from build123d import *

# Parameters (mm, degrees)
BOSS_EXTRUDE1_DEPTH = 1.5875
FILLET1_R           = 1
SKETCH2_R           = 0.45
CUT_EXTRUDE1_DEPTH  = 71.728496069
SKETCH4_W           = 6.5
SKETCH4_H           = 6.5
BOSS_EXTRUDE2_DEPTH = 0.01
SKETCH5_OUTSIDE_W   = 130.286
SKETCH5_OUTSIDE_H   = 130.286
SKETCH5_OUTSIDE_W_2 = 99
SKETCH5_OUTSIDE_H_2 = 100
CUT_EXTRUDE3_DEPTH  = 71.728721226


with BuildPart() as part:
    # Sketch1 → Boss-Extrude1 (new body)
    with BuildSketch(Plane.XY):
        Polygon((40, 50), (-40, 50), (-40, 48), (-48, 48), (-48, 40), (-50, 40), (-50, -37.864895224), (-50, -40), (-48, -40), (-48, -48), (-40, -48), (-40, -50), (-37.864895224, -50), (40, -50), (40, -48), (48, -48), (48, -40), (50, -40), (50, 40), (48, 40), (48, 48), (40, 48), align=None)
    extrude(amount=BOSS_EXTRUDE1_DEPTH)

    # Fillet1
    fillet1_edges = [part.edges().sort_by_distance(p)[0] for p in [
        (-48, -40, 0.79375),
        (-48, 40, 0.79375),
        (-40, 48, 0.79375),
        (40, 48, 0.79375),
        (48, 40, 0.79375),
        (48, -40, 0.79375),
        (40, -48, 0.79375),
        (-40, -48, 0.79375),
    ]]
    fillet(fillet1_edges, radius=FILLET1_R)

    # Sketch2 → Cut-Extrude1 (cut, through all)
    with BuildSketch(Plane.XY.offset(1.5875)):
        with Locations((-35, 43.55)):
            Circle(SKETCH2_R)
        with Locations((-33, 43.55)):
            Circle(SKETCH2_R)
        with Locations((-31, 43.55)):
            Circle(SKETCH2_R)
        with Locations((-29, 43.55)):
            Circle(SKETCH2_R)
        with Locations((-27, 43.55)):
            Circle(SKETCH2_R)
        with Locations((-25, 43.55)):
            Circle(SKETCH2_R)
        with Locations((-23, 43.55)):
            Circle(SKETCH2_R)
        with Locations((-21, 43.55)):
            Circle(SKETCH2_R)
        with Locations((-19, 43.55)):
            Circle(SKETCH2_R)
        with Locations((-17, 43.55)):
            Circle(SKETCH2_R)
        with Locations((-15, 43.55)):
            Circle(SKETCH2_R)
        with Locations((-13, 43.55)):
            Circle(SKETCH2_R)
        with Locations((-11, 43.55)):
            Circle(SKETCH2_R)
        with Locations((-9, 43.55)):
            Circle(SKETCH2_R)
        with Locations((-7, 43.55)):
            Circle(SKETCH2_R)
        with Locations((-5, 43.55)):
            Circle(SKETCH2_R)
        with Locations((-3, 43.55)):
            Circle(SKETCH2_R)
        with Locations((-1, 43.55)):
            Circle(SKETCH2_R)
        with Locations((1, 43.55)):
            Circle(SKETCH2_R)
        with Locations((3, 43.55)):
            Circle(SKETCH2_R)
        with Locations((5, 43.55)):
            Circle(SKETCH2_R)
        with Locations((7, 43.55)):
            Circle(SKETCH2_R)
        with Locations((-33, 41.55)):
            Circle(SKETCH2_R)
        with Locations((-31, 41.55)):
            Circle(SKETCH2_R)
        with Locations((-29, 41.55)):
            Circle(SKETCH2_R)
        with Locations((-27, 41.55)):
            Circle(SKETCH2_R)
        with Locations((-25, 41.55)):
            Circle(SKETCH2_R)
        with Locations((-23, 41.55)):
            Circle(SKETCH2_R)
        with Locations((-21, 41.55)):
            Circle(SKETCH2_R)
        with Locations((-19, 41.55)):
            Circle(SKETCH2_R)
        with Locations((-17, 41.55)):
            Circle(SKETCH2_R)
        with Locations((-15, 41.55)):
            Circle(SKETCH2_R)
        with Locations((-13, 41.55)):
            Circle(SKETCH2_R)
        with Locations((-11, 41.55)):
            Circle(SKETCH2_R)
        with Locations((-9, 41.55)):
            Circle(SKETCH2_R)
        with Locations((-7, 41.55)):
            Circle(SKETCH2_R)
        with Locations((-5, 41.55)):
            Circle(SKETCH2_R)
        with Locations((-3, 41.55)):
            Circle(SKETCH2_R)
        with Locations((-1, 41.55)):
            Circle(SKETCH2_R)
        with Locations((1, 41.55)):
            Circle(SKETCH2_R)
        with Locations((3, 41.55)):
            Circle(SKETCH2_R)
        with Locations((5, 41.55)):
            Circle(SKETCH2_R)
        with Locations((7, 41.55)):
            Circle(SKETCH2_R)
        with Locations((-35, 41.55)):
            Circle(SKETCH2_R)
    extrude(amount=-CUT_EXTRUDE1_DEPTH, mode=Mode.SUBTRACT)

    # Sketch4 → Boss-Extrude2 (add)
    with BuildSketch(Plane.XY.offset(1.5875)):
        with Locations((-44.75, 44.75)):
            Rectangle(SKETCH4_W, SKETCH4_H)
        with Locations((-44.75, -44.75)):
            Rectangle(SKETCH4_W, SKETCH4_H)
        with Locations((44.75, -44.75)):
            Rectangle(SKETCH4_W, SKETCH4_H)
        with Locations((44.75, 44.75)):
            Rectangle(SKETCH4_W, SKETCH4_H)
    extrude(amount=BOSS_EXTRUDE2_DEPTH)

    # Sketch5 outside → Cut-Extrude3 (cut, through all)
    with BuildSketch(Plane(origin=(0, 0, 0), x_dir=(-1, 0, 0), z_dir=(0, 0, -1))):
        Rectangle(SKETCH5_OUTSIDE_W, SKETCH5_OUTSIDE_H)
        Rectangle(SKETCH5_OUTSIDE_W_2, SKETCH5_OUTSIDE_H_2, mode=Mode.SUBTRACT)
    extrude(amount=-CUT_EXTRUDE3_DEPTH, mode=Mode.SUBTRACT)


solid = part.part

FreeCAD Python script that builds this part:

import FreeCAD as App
import Part
import Sketcher
from FreeCAD import Vector
Q = App.Units.Quantity


def edges_at(feature, points):
    """Names of the edges that pass closest to the given points."""
    edges = feature.Shape.Edges
    near = lambda p: min(range(len(edges)), key=lambda i: edges[i].distToShape(Part.Vertex(*p))[0])
    return sorted({f"Edge{near(p) + 1}" for p in points})


def add_polygon(sketch, points):
    """Adds a closed chain of lines whose ends are joined by coincident constraints."""
    first, n = sketch.GeometryCount, len(points)
    for a, b in zip(points, points[1:] + points[:1]):
        sketch.addGeometry(Part.LineSegment(App.Vector(*a, 0), App.Vector(*b, 0)), False)
    for i in range(n):
        sketch.addConstraint(Sketcher.Constraint("Coincident", first + i, 2, first + (i + 1) % n, 1))

doc = App.newDocument("Part")
params = doc.addObject("Spreadsheet::Sheet", "Params")
for row, (alias, value) in enumerate([
    ("sketch1_width", "80 mm"),
    ("sketch1_width2", "8 mm"),
    ("sketch1_width3", "2 mm"),
    ("pad1_length", "1.5875 mm"),
    ("fillet_radius", "1 mm"),
    ("sketch2_diameter", "0.9 mm"),
    ("sketch3_width", "6.5 mm"),
    ("pad2_length", "0.01 mm"),
    ("sketch4_width", "99 mm"),
    ("sketch4_height", "100 mm"),
], start=1):
    params.set(f"A{row}", alias)
    params.set(f"B{row}", "=" + value)
    params.setAlias(f"B{row}", alias)

body = doc.addObject("PartDesign::Body", "Body")

sketch1 = body.newObject("Sketcher::SketchObject", "Sketch")
sketch1.AttachmentSupport = (doc.getObject("XY_Plane"), [""])
sketch1.MapMode = "FlatFace"
add_polygon(sketch1, [(40, 50), (-40, 50), (-40, 48), (-48, 48), (-48, 40), (-50, 40), (-50, -40), (-48, -40), (-48, -48), (-40, -48), (-40, -50), (40, -50), (40, -48), (48, -48), (48, -40), (50, -40), (50, 40), (48, 40), (48, 48), (40, 48)])
sketch1.addConstraint(Sketcher.Constraint("Horizontal", 0))
sketch1.addConstraint(Sketcher.Constraint("Vertical", 1))
sketch1.addConstraint(Sketcher.Constraint("Horizontal", 2))
sketch1.addConstraint(Sketcher.Constraint("Vertical", 3))
sketch1.addConstraint(Sketcher.Constraint("Horizontal", 4))
sketch1.addConstraint(Sketcher.Constraint("Vertical", 5))
sketch1.addConstraint(Sketcher.Constraint("Horizontal", 6))
sketch1.addConstraint(Sketcher.Constraint("Vertical", 7))
sketch1.addConstraint(Sketcher.Constraint("Horizontal", 8))
sketch1.addConstraint(Sketcher.Constraint("Vertical", 9))
sketch1.addConstraint(Sketcher.Constraint("Horizontal", 10))
sketch1.addConstraint(Sketcher.Constraint("Vertical", 11))
sketch1.addConstraint(Sketcher.Constraint("Horizontal", 12))
sketch1.addConstraint(Sketcher.Constraint("Vertical", 13))
sketch1.addConstraint(Sketcher.Constraint("Horizontal", 14))
sketch1.addConstraint(Sketcher.Constraint("Vertical", 15))
sketch1.addConstraint(Sketcher.Constraint("Horizontal", 16))
sketch1.addConstraint(Sketcher.Constraint("Vertical", 17))
sketch1.addConstraint(Sketcher.Constraint("Horizontal", 18))
sketch1.addConstraint(Sketcher.Constraint("Vertical", 19))
sketch1.addConstraint(Sketcher.Constraint("Symmetric", 0, 2, 10, 2, -1, 1))
sketch1.addConstraint(Sketcher.Constraint("Symmetric", 2, 2, 12, 2, -1, 1))
sketch1.addConstraint(Sketcher.Constraint("Symmetric", 4, 2, 14, 2, -1, 1))
sketch1.addConstraint(Sketcher.Constraint("Symmetric", 6, 2, 16, 2, -1, 1))
sketch1.addConstraint(Sketcher.Constraint("Symmetric", 8, 2, 18, 2, -1, 1))
sketch1.addConstraint(Sketcher.Constraint("Symmetric", 8, 2, 11, 2, -2))
sketch1.addConstraint(Sketcher.Constraint("Symmetric", 6, 2, 13, 2, -2))
sketch1.addConstraint(Sketcher.Constraint("Equal", 16, 1))
sketch1.addConstraint(Sketcher.Constraint("Equal", 18, 3))
sketch1.addConstraint(Sketcher.Constraint("Equal", 10, 5))
sketch1.addConstraint(Sketcher.Constraint("DistanceX", 0, 2, 0, 1, Q("80 mm")))
sketch1.addConstraint(Sketcher.Constraint("DistanceX", 2, 2, 2, 1, Q("8 mm")))
sketch1.addConstraint(Sketcher.Constraint("DistanceX", 4, 2, 4, 1, Q("2 mm")))
sketch1.setExpression("Constraints[50]", "Params.sketch1_width")
sketch1.setExpression("Constraints[51]", "Params.sketch1_width2")
sketch1.setExpression("Constraints[52]", "Params.sketch1_width3")
pad1 = body.newObject("PartDesign::Pad", "Pad")
pad1.Profile = sketch1
pad1.setExpression("Length", "Params.pad1_length")
doc.recompute()

fillet = body.newObject("PartDesign::Fillet", "Fillet")
fillet.Base = (pad1, edges_at(pad1, [
    (-48, -40, 0.794),
    (-48, 40, 0.794),
    (-40, 48, 0.794),
    (40, 48, 0.794),
    (48, 40, 0.794),
    (48, -40, 0.794),
    (40, -48, 0.794),
    (-40, -48, 0.794),
]))
fillet.setExpression("Radius", "Params.fillet_radius")

sketch2 = body.newObject("Sketcher::SketchObject", "Sketch001")
sketch2.AttachmentSupport = (doc.getObject("XY_Plane"), [""])
sketch2.MapMode = "FlatFace"
sketch2.AttachmentOffset = App.Placement(Vector(0, 0, 1.5875), App.Rotation())
sketch2.addGeometry(Part.Circle(Vector(-35, 43.55, 0), Vector(0, 0, 1), 0.45), False)
sketch2.addGeometry(Part.Circle(Vector(-33, 43.55, 0), Vector(0, 0, 1), 0.45), False)
sketch2.addGeometry(Part.Circle(Vector(-31, 43.55, 0), Vector(0, 0, 1), 0.45), False)
sketch2.addGeometry(Part.Circle(Vector(-29, 43.55, 0), Vector(0, 0, 1), 0.45), False)
sketch2.addGeometry(Part.Circle(Vector(-27, 43.55, 0), Vector(0, 0, 1), 0.45), False)
sketch2.addGeometry(Part.Circle(Vector(-25, 43.55, 0), Vector(0, 0, 1), 0.45), False)
sketch2.addGeometry(Part.Circle(Vector(-23, 43.55, 0), Vector(0, 0, 1), 0.45), False)
sketch2.addGeometry(Part.Circle(Vector(-21, 43.55, 0), Vector(0, 0, 1), 0.45), False)
sketch2.addGeometry(Part.Circle(Vector(-19, 43.55, 0), Vector(0, 0, 1), 0.45), False)
sketch2.addGeometry(Part.Circle(Vector(-17, 43.55, 0), Vector(0, 0, 1), 0.45), False)
sketch2.addGeometry(Part.Circle(Vector(-15, 43.55, 0), Vector(0, 0, 1), 0.45), False)
sketch2.addGeometry(Part.Circle(Vector(-13, 43.55, 0), Vector(0, 0, 1), 0.45), False)
sketch2.addGeometry(Part.Circle(Vector(-11, 43.55, 0), Vector(0, 0, 1), 0.45), False)
sketch2.addGeometry(Part.Circle(Vector(-9, 43.55, 0), Vector(0, 0, 1), 0.45), False)
sketch2.addGeometry(Part.Circle(Vector(-7, 43.55, 0), Vector(0, 0, 1), 0.45), False)
sketch2.addGeometry(Part.Circle(Vector(-5, 43.55, 0), Vector(0, 0, 1), 0.45), False)
sketch2.addGeometry(Part.Circle(Vector(-3, 43.55, 0), Vector(0, 0, 1), 0.45), False)
sketch2.addGeometry(Part.Circle(Vector(-1, 43.55, 0), Vector(0, 0, 1), 0.45), False)
sketch2.addGeometry(Part.Circle(Vector(1, 43.55, 0), Vector(0, 0, 1), 0.45), False)
sketch2.addGeometry(Part.Circle(Vector(3, 43.55, 0), Vector(0, 0, 1), 0.45), False)
sketch2.addGeometry(Part.Circle(Vector(5, 43.55, 0), Vector(0, 0, 1), 0.45), False)
sketch2.addGeometry(Part.Circle(Vector(7, 43.55, 0), Vector(0, 0, 1), 0.45), False)
sketch2.addGeometry(Part.Circle(Vector(-33, 41.55, 0), Vector(0, 0, 1), 0.45), False)
sketch2.addGeometry(Part.Circle(Vector(-31, 41.55, 0), Vector(0, 0, 1), 0.45), False)
sketch2.addGeometry(Part.Circle(Vector(-29, 41.55, 0), Vector(0, 0, 1), 0.45), False)
sketch2.addGeometry(Part.Circle(Vector(-27, 41.55, 0), Vector(0, 0, 1), 0.45), False)
sketch2.addGeometry(Part.Circle(Vector(-25, 41.55, 0), Vector(0, 0, 1), 0.45), False)
sketch2.addGeometry(Part.Circle(Vector(-23, 41.55, 0), Vector(0, 0, 1), 0.45), False)
sketch2.addGeometry(Part.Circle(Vector(-21, 41.55, 0), Vector(0, 0, 1), 0.45), False)
sketch2.addGeometry(Part.Circle(Vector(-19, 41.55, 0), Vector(0, 0, 1), 0.45), False)
sketch2.addGeometry(Part.Circle(Vector(-17, 41.55, 0), Vector(0, 0, 1), 0.45), False)
sketch2.addGeometry(Part.Circle(Vector(-15, 41.55, 0), Vector(0, 0, 1), 0.45), False)
sketch2.addGeometry(Part.Circle(Vector(-13, 41.55, 0), Vector(0, 0, 1), 0.45), False)
sketch2.addGeometry(Part.Circle(Vector(-11, 41.55, 0), Vector(0, 0, 1), 0.45), False)
sketch2.addGeometry(Part.Circle(Vector(-9, 41.55, 0), Vector(0, 0, 1), 0.45), False)
sketch2.addGeometry(Part.Circle(Vector(-7, 41.55, 0), Vector(0, 0, 1), 0.45), False)
sketch2.addGeometry(Part.Circle(Vector(-5, 41.55, 0), Vector(0, 0, 1), 0.45), False)
sketch2.addGeometry(Part.Circle(Vector(-3, 41.55, 0), Vector(0, 0, 1), 0.45), False)
sketch2.addGeometry(Part.Circle(Vector(-1, 41.55, 0), Vector(0, 0, 1), 0.45), False)
sketch2.addGeometry(Part.Circle(Vector(1, 41.55, 0), Vector(0, 0, 1), 0.45), False)
sketch2.addGeometry(Part.Circle(Vector(3, 41.55, 0), Vector(0, 0, 1), 0.45), False)
sketch2.addGeometry(Part.Circle(Vector(5, 41.55, 0), Vector(0, 0, 1), 0.45), False)
sketch2.addGeometry(Part.Circle(Vector(7, 41.55, 0), Vector(0, 0, 1), 0.45), False)
sketch2.addGeometry(Part.Circle(Vector(-35, 41.55, 0), Vector(0, 0, 1), 0.45), False)
sketch2.addConstraint(Sketcher.Constraint("Equal", 0, 1))
sketch2.addConstraint(Sketcher.Constraint("Equal", 1, 2))
sketch2.addConstraint(Sketcher.Constraint("Equal", 2, 3))
sketch2.addConstraint(Sketcher.Constraint("Equal", 3, 4))
sketch2.addConstraint(Sketcher.Constraint("Equal", 4, 5))
sketch2.addConstraint(Sketcher.Constraint("Equal", 5, 6))
sketch2.addConstraint(Sketcher.Constraint("Equal", 6, 7))
sketch2.addConstraint(Sketcher.Constraint("Equal", 7, 8))
sketch2.addConstraint(Sketcher.Constraint("Equal", 8, 9))
sketch2.addConstraint(Sketcher.Constraint("Equal", 9, 10))
sketch2.addConstraint(Sketcher.Constraint("Equal", 10, 11))
sketch2.addConstraint(Sketcher.Constraint("Equal", 11, 12))
sketch2.addConstraint(Sketcher.Constraint("Equal", 12, 13))
sketch2.addConstraint(Sketcher.Constraint("Equal", 13, 14))
sketch2.addConstraint(Sketcher.Constraint("Equal", 14, 15))
sketch2.addConstraint(Sketcher.Constraint("Equal", 15, 16))
sketch2.addConstraint(Sketcher.Constraint("Equal", 16, 17))
sketch2.addConstraint(Sketcher.Constraint("Equal", 17, 18))
sketch2.addConstraint(Sketcher.Constraint("Equal", 18, 19))
sketch2.addConstraint(Sketcher.Constraint("Equal", 19, 20))
sketch2.addConstraint(Sketcher.Constraint("Equal", 20, 21))
sketch2.addConstraint(Sketcher.Constraint("Equal", 21, 22))
sketch2.addConstraint(Sketcher.Constraint("Equal", 22, 23))
sketch2.addConstraint(Sketcher.Constraint("Equal", 23, 24))
sketch2.addConstraint(Sketcher.Constraint("Equal", 24, 25))
sketch2.addConstraint(Sketcher.Constraint("Equal", 25, 26))
sketch2.addConstraint(Sketcher.Constraint("Equal", 26, 27))
sketch2.addConstraint(Sketcher.Constraint("Equal", 27, 28))
sketch2.addConstraint(Sketcher.Constraint("Equal", 28, 29))
sketch2.addConstraint(Sketcher.Constraint("Equal", 29, 30))
sketch2.addConstraint(Sketcher.Constraint("Equal", 30, 31))
sketch2.addConstraint(Sketcher.Constraint("Equal", 31, 32))
sketch2.addConstraint(Sketcher.Constraint("Equal", 32, 33))
sketch2.addConstraint(Sketcher.Constraint("Equal", 33, 34))
sketch2.addConstraint(Sketcher.Constraint("Equal", 34, 35))
sketch2.addConstraint(Sketcher.Constraint("Equal", 35, 36))
sketch2.addConstraint(Sketcher.Constraint("Equal", 36, 37))
sketch2.addConstraint(Sketcher.Constraint("Equal", 37, 38))
sketch2.addConstraint(Sketcher.Constraint("Equal", 38, 39))
sketch2.addConstraint(Sketcher.Constraint("Equal", 39, 40))
sketch2.addConstraint(Sketcher.Constraint("Equal", 40, 41))
sketch2.addConstraint(Sketcher.Constraint("Equal", 41, 42))
sketch2.addConstraint(Sketcher.Constraint("Equal", 42, 43))
sketch2.addConstraint(Sketcher.Constraint("Symmetric", 17, 3, 18, 3, -2))
sketch2.addConstraint(Sketcher.Constraint("Symmetric", 16, 3, 19, 3, -2))
sketch2.addConstraint(Sketcher.Constraint("Symmetric", 15, 3, 20, 3, -2))
sketch2.addConstraint(Sketcher.Constraint("Symmetric", 14, 3, 21, 3, -2))
sketch2.addConstraint(Sketcher.Constraint("Symmetric", 38, 3, 39, 3, -2))
sketch2.addConstraint(Sketcher.Constraint("Symmetric", 37, 3, 40, 3, -2))
sketch2.addConstraint(Sketcher.Constraint("Symmetric", 36, 3, 41, 3, -2))
sketch2.addConstraint(Sketcher.Constraint("Symmetric", 35, 3, 42, 3, -2))
sketch2.addConstraint(Sketcher.Constraint("Horizontal", 0, 3, 1, 3))
sketch2.addConstraint(Sketcher.Constraint("Horizontal", 1, 3, 2, 3))
sketch2.addConstraint(Sketcher.Constraint("Horizontal", 2, 3, 3, 3))
sketch2.addConstraint(Sketcher.Constraint("Horizontal", 3, 3, 4, 3))
sketch2.addConstraint(Sketcher.Constraint("Horizontal", 4, 3, 5, 3))
sketch2.addConstraint(Sketcher.Constraint("Horizontal", 5, 3, 6, 3))
sketch2.addConstraint(Sketcher.Constraint("Horizontal", 6, 3, 7, 3))
sketch2.addConstraint(Sketcher.Constraint("Horizontal", 7, 3, 8, 3))
sketch2.addConstraint(Sketcher.Constraint("Horizontal", 8, 3, 9, 3))
sketch2.addConstraint(Sketcher.Constraint("Horizontal", 9, 3, 10, 3))
sketch2.addConstraint(Sketcher.Constraint("Horizontal", 10, 3, 11, 3))
sketch2.addConstraint(Sketcher.Constraint("Horizontal", 11, 3, 12, 3))
sketch2.addConstraint(Sketcher.Constraint("Horizontal", 12, 3, 13, 3))
sketch2.addConstraint(Sketcher.Constraint("Horizontal", 13, 3, 14, 3))
sketch2.addConstraint(Sketcher.Constraint("Horizontal", 14, 3, 15, 3))
sketch2.addConstraint(Sketcher.Constraint("Horizontal", 15, 3, 16, 3))
sketch2.addConstraint(Sketcher.Constraint("Horizontal", 16, 3, 17, 3))
sketch2.addConstraint(Sketcher.Constraint("Horizontal", 22, 3, 23, 3))
sketch2.addConstraint(Sketcher.Constraint("Horizontal", 23, 3, 24, 3))
sketch2.addConstraint(Sketcher.Constraint("Horizontal", 24, 3, 25, 3))
sketch2.addConstraint(Sketcher.Constraint("Horizontal", 25, 3, 26, 3))
sketch2.addConstraint(Sketcher.Constraint("Horizontal", 26, 3, 27, 3))
sketch2.addConstraint(Sketcher.Constraint("Horizontal", 27, 3, 28, 3))
sketch2.addConstraint(Sketcher.Constraint("Horizontal", 28, 3, 29, 3))
sketch2.addConstraint(Sketcher.Constraint("Horizontal", 29, 3, 30, 3))
sketch2.addConstraint(Sketcher.Constraint("Horizontal", 30, 3, 31, 3))
sketch2.addConstraint(Sketcher.Constraint("Horizontal", 31, 3, 32, 3))
sketch2.addConstraint(Sketcher.Constraint("Horizontal", 32, 3, 33, 3))
sketch2.addConstraint(Sketcher.Constraint("Horizontal", 33, 3, 34, 3))
sketch2.addConstraint(Sketcher.Constraint("Horizontal", 34, 3, 35, 3))
sketch2.addConstraint(Sketcher.Constraint("Horizontal", 35, 3, 36, 3))
sketch2.addConstraint(Sketcher.Constraint("Horizontal", 36, 3, 37, 3))
sketch2.addConstraint(Sketcher.Constraint("Horizontal", 37, 3, 38, 3))
sketch2.addConstraint(Sketcher.Constraint("Horizontal", 42, 3, 43, 3))
sketch2.addConstraint(Sketcher.Constraint("Vertical", 1, 3, 22, 3))
sketch2.addConstraint(Sketcher.Constraint("Vertical", 2, 3, 23, 3))
sketch2.addConstraint(Sketcher.Constraint("Vertical", 3, 3, 24, 3))
sketch2.addConstraint(Sketcher.Constraint("Vertical", 4, 3, 25, 3))
sketch2.addConstraint(Sketcher.Constraint("Vertical", 5, 3, 26, 3))
sketch2.addConstraint(Sketcher.Constraint("Vertical", 6, 3, 27, 3))
sketch2.addConstraint(Sketcher.Constraint("Vertical", 7, 3, 28, 3))
sketch2.addConstraint(Sketcher.Constraint("Vertical", 8, 3, 29, 3))
sketch2.addConstraint(Sketcher.Constraint("Vertical", 9, 3, 30, 3))
sketch2.addConstraint(Sketcher.Constraint("Vertical", 10, 3, 31, 3))
sketch2.addConstraint(Sketcher.Constraint("Vertical", 11, 3, 32, 3))
sketch2.addConstraint(Sketcher.Constraint("Vertical", 12, 3, 33, 3))
sketch2.addConstraint(Sketcher.Constraint("Vertical", 13, 3, 34, 3))
sketch2.addConstraint(Sketcher.Constraint("Vertical", 14, 3, 35, 3))
sketch2.addConstraint(Sketcher.Constraint("Vertical", 15, 3, 36, 3))
sketch2.addConstraint(Sketcher.Constraint("Vertical", 16, 3, 37, 3))
sketch2.addConstraint(Sketcher.Constraint("Vertical", 17, 3, 38, 3))
sketch2.addConstraint(Sketcher.Constraint("Vertical", 0, 3, 43, 3))
sketch2.addConstraint(Sketcher.Constraint("Diameter", 0, Q("0.9 mm")))
sketch2.addConstraint(Sketcher.Constraint("DistanceX", 0, 3, -1, 1, Q("35 mm")))
sketch2.addConstraint(Sketcher.Constraint("DistanceX", 1, 3, -1, 1, Q("33 mm")))
sketch2.addConstraint(Sketcher.Constraint("DistanceX", 2, 3, -1, 1, Q("31 mm")))
sketch2.addConstraint(Sketcher.Constraint("DistanceX", 3, 3, -1, 1, Q("29 mm")))
sketch2.addConstraint(Sketcher.Constraint("DistanceX", 4, 3, -1, 1, Q("27 mm")))
sketch2.addConstraint(Sketcher.Constraint("DistanceX", 5, 3, -1, 1, Q("25 mm")))
sketch2.addConstraint(Sketcher.Constraint("DistanceX", 6, 3, -1, 1, Q("23 mm")))
sketch2.addConstraint(Sketcher.Constraint("DistanceX", 7, 3, -1, 1, Q("21 mm")))
sketch2.addConstraint(Sketcher.Constraint("DistanceX", 8, 3, -1, 1, Q("19 mm")))
sketch2.addConstraint(Sketcher.Constraint("DistanceX", 9, 3, -1, 1, Q("17 mm")))
sketch2.addConstraint(Sketcher.Constraint("DistanceX", 10, 3, -1, 1, Q("15 mm")))
sketch2.addConstraint(Sketcher.Constraint("DistanceX", 11, 3, -1, 1, Q("13 mm")))
sketch2.addConstraint(Sketcher.Constraint("DistanceX", 12, 3, -1, 1, Q("11 mm")))
sketch2.addConstraint(Sketcher.Constraint("DistanceX", 13, 3, -1, 1, Q("9 mm")))
sketch2.addConstraint(Sketcher.Constraint("DistanceX", 14, 3, -1, 1, Q("7 mm")))
sketch2.addConstraint(Sketcher.Constraint("DistanceX", 15, 3, -1, 1, Q("5 mm")))
sketch2.addConstraint(Sketcher.Constraint("DistanceX", 16, 3, -1, 1, Q("3 mm")))
sketch2.addConstraint(Sketcher.Constraint("DistanceX", 17, 3, -1, 1, Q("1 mm")))
sketch2.addConstraint(Sketcher.Constraint("DistanceY", 22, 3, 1, 3, Q("2 mm")))
sketch2.addConstraint(Sketcher.Constraint("DistanceY", -1, 1, 0, 3, Q("43.55 mm")))
sketch2.setExpression("Constraints[103]", "Params.sketch2_diameter")
pocket1 = body.newObject("PartDesign::Pocket", "Pocket")
pocket1.Profile = sketch2
pocket1.Type = "ThroughAll"

sketch3 = body.newObject("Sketcher::SketchObject", "Sketch002")
sketch3.AttachmentSupport = (doc.getObject("XY_Plane"), [""])
sketch3.MapMode = "FlatFace"
sketch3.AttachmentOffset = App.Placement(Vector(0, 0, 1.5875), App.Rotation())
add_polygon(sketch3, [(-48, 48), (-48, 42), (-42, 42), (-42, 48)])
add_polygon(sketch3, [(-48, -42), (-48, -48), (-42, -48), (-42, -42)])
add_polygon(sketch3, [(42, -42), (42, -48), (48, -48), (48, -42)])
add_polygon(sketch3, [(42, 48), (42, 42), (48, 42), (48, 48)])
sketch3.addConstraint(Sketcher.Constraint("Vertical", 0))
sketch3.addConstraint(Sketcher.Constraint("Horizontal", 1))
sketch3.addConstraint(Sketcher.Constraint("Vertical", 2))
sketch3.addConstraint(Sketcher.Constraint("Horizontal", 3))
sketch3.addConstraint(Sketcher.Constraint("Vertical", 4))
sketch3.addConstraint(Sketcher.Constraint("Horizontal", 5))
sketch3.addConstraint(Sketcher.Constraint("Vertical", 6))
sketch3.addConstraint(Sketcher.Constraint("Horizontal", 7))
sketch3.addConstraint(Sketcher.Constraint("Vertical", 8))
sketch3.addConstraint(Sketcher.Constraint("Horizontal", 9))
sketch3.addConstraint(Sketcher.Constraint("Vertical", 10))
sketch3.addConstraint(Sketcher.Constraint("Horizontal", 11))
sketch3.addConstraint(Sketcher.Constraint("Vertical", 12))
sketch3.addConstraint(Sketcher.Constraint("Horizontal", 13))
sketch3.addConstraint(Sketcher.Constraint("Vertical", 14))
sketch3.addConstraint(Sketcher.Constraint("Horizontal", 15))
sketch3.addConstraint(Sketcher.Constraint("Symmetric", 2, 2, 8, 2, -1, 1))
sketch3.addConstraint(Sketcher.Constraint("Symmetric", 0, 2, 10, 2, -1, 1))
sketch3.addConstraint(Sketcher.Constraint("Symmetric", 6, 2, 12, 2, -1, 1))
sketch3.addConstraint(Sketcher.Constraint("Symmetric", 4, 2, 14, 2, -1, 1))
sketch3.addConstraint(Sketcher.Constraint("Symmetric", 5, 2, 8, 2, -2))
sketch3.addConstraint(Sketcher.Constraint("Symmetric", 7, 2, 10, 2, -2))
sketch3.addConstraint(Sketcher.Constraint("Equal", 15, 0))
sketch3.addConstraint(Sketcher.Constraint("DistanceX", 1, 1, 1, 2, Q("6.5 mm")))
sketch3.addConstraint(Sketcher.Constraint("DistanceX", 0, 2, -1, 1, Q("48 mm")))
sketch3.addConstraint(Sketcher.Constraint("DistanceY", -1, 1, 2, 2, Q("48 mm")))
sketch3.setExpression("Constraints[39]", "Params.sketch3_width")
pad2 = body.newObject("PartDesign::Pad", "Pad001")
pad2.Profile = sketch3
pad2.setExpression("Length", "Params.pad2_length")

sketch4 = body.newObject("Sketcher::SketchObject", "Sketch003")
sketch4.AttachmentSupport = (doc.getObject("XY_Plane"), [""])
sketch4.MapMode = "FlatFace"
add_polygon(sketch4, [(65, 65), (65, -65), (-65, -65), (-65, 65)])
add_polygon(sketch4, [(-50, -50), (50, -50), (50, 50), (-50, 50)])
sketch4.addConstraint(Sketcher.Constraint("Vertical", 0))
sketch4.addConstraint(Sketcher.Constraint("Horizontal", 1))
sketch4.addConstraint(Sketcher.Constraint("Vertical", 2))
sketch4.addConstraint(Sketcher.Constraint("Horizontal", 3))
sketch4.addConstraint(Sketcher.Constraint("Horizontal", 4))
sketch4.addConstraint(Sketcher.Constraint("Vertical", 5))
sketch4.addConstraint(Sketcher.Constraint("Horizontal", 6))
sketch4.addConstraint(Sketcher.Constraint("Vertical", 7))
sketch4.addConstraint(Sketcher.Constraint("Symmetric", 0, 2, 2, 2, -1, 1))
sketch4.addConstraint(Sketcher.Constraint("Symmetric", 4, 2, 6, 2, -1, 1))
sketch4.addConstraint(Sketcher.Constraint("Equal", 3, 0))
sketch4.addConstraint(Sketcher.Constraint("DistanceX", 4, 1, 4, 2, Q("99 mm")))
sketch4.addConstraint(Sketcher.Constraint("DistanceY", 5, 1, 5, 2, Q("100 mm")))
sketch4.addConstraint(Sketcher.Constraint("DistanceX", 1, 2, 1, 1, Q("130.286 mm")))
sketch4.setExpression("Constraints[19]", "Params.sketch4_width")
sketch4.setExpression("Constraints[20]", "Params.sketch4_height")
pocket2 = body.newObject("PartDesign::Pocket", "Pocket001")
pocket2.Profile = sketch4
pocket2.Type = "ThroughAll"
pocket2.Reversed = True

doc.recompute()
